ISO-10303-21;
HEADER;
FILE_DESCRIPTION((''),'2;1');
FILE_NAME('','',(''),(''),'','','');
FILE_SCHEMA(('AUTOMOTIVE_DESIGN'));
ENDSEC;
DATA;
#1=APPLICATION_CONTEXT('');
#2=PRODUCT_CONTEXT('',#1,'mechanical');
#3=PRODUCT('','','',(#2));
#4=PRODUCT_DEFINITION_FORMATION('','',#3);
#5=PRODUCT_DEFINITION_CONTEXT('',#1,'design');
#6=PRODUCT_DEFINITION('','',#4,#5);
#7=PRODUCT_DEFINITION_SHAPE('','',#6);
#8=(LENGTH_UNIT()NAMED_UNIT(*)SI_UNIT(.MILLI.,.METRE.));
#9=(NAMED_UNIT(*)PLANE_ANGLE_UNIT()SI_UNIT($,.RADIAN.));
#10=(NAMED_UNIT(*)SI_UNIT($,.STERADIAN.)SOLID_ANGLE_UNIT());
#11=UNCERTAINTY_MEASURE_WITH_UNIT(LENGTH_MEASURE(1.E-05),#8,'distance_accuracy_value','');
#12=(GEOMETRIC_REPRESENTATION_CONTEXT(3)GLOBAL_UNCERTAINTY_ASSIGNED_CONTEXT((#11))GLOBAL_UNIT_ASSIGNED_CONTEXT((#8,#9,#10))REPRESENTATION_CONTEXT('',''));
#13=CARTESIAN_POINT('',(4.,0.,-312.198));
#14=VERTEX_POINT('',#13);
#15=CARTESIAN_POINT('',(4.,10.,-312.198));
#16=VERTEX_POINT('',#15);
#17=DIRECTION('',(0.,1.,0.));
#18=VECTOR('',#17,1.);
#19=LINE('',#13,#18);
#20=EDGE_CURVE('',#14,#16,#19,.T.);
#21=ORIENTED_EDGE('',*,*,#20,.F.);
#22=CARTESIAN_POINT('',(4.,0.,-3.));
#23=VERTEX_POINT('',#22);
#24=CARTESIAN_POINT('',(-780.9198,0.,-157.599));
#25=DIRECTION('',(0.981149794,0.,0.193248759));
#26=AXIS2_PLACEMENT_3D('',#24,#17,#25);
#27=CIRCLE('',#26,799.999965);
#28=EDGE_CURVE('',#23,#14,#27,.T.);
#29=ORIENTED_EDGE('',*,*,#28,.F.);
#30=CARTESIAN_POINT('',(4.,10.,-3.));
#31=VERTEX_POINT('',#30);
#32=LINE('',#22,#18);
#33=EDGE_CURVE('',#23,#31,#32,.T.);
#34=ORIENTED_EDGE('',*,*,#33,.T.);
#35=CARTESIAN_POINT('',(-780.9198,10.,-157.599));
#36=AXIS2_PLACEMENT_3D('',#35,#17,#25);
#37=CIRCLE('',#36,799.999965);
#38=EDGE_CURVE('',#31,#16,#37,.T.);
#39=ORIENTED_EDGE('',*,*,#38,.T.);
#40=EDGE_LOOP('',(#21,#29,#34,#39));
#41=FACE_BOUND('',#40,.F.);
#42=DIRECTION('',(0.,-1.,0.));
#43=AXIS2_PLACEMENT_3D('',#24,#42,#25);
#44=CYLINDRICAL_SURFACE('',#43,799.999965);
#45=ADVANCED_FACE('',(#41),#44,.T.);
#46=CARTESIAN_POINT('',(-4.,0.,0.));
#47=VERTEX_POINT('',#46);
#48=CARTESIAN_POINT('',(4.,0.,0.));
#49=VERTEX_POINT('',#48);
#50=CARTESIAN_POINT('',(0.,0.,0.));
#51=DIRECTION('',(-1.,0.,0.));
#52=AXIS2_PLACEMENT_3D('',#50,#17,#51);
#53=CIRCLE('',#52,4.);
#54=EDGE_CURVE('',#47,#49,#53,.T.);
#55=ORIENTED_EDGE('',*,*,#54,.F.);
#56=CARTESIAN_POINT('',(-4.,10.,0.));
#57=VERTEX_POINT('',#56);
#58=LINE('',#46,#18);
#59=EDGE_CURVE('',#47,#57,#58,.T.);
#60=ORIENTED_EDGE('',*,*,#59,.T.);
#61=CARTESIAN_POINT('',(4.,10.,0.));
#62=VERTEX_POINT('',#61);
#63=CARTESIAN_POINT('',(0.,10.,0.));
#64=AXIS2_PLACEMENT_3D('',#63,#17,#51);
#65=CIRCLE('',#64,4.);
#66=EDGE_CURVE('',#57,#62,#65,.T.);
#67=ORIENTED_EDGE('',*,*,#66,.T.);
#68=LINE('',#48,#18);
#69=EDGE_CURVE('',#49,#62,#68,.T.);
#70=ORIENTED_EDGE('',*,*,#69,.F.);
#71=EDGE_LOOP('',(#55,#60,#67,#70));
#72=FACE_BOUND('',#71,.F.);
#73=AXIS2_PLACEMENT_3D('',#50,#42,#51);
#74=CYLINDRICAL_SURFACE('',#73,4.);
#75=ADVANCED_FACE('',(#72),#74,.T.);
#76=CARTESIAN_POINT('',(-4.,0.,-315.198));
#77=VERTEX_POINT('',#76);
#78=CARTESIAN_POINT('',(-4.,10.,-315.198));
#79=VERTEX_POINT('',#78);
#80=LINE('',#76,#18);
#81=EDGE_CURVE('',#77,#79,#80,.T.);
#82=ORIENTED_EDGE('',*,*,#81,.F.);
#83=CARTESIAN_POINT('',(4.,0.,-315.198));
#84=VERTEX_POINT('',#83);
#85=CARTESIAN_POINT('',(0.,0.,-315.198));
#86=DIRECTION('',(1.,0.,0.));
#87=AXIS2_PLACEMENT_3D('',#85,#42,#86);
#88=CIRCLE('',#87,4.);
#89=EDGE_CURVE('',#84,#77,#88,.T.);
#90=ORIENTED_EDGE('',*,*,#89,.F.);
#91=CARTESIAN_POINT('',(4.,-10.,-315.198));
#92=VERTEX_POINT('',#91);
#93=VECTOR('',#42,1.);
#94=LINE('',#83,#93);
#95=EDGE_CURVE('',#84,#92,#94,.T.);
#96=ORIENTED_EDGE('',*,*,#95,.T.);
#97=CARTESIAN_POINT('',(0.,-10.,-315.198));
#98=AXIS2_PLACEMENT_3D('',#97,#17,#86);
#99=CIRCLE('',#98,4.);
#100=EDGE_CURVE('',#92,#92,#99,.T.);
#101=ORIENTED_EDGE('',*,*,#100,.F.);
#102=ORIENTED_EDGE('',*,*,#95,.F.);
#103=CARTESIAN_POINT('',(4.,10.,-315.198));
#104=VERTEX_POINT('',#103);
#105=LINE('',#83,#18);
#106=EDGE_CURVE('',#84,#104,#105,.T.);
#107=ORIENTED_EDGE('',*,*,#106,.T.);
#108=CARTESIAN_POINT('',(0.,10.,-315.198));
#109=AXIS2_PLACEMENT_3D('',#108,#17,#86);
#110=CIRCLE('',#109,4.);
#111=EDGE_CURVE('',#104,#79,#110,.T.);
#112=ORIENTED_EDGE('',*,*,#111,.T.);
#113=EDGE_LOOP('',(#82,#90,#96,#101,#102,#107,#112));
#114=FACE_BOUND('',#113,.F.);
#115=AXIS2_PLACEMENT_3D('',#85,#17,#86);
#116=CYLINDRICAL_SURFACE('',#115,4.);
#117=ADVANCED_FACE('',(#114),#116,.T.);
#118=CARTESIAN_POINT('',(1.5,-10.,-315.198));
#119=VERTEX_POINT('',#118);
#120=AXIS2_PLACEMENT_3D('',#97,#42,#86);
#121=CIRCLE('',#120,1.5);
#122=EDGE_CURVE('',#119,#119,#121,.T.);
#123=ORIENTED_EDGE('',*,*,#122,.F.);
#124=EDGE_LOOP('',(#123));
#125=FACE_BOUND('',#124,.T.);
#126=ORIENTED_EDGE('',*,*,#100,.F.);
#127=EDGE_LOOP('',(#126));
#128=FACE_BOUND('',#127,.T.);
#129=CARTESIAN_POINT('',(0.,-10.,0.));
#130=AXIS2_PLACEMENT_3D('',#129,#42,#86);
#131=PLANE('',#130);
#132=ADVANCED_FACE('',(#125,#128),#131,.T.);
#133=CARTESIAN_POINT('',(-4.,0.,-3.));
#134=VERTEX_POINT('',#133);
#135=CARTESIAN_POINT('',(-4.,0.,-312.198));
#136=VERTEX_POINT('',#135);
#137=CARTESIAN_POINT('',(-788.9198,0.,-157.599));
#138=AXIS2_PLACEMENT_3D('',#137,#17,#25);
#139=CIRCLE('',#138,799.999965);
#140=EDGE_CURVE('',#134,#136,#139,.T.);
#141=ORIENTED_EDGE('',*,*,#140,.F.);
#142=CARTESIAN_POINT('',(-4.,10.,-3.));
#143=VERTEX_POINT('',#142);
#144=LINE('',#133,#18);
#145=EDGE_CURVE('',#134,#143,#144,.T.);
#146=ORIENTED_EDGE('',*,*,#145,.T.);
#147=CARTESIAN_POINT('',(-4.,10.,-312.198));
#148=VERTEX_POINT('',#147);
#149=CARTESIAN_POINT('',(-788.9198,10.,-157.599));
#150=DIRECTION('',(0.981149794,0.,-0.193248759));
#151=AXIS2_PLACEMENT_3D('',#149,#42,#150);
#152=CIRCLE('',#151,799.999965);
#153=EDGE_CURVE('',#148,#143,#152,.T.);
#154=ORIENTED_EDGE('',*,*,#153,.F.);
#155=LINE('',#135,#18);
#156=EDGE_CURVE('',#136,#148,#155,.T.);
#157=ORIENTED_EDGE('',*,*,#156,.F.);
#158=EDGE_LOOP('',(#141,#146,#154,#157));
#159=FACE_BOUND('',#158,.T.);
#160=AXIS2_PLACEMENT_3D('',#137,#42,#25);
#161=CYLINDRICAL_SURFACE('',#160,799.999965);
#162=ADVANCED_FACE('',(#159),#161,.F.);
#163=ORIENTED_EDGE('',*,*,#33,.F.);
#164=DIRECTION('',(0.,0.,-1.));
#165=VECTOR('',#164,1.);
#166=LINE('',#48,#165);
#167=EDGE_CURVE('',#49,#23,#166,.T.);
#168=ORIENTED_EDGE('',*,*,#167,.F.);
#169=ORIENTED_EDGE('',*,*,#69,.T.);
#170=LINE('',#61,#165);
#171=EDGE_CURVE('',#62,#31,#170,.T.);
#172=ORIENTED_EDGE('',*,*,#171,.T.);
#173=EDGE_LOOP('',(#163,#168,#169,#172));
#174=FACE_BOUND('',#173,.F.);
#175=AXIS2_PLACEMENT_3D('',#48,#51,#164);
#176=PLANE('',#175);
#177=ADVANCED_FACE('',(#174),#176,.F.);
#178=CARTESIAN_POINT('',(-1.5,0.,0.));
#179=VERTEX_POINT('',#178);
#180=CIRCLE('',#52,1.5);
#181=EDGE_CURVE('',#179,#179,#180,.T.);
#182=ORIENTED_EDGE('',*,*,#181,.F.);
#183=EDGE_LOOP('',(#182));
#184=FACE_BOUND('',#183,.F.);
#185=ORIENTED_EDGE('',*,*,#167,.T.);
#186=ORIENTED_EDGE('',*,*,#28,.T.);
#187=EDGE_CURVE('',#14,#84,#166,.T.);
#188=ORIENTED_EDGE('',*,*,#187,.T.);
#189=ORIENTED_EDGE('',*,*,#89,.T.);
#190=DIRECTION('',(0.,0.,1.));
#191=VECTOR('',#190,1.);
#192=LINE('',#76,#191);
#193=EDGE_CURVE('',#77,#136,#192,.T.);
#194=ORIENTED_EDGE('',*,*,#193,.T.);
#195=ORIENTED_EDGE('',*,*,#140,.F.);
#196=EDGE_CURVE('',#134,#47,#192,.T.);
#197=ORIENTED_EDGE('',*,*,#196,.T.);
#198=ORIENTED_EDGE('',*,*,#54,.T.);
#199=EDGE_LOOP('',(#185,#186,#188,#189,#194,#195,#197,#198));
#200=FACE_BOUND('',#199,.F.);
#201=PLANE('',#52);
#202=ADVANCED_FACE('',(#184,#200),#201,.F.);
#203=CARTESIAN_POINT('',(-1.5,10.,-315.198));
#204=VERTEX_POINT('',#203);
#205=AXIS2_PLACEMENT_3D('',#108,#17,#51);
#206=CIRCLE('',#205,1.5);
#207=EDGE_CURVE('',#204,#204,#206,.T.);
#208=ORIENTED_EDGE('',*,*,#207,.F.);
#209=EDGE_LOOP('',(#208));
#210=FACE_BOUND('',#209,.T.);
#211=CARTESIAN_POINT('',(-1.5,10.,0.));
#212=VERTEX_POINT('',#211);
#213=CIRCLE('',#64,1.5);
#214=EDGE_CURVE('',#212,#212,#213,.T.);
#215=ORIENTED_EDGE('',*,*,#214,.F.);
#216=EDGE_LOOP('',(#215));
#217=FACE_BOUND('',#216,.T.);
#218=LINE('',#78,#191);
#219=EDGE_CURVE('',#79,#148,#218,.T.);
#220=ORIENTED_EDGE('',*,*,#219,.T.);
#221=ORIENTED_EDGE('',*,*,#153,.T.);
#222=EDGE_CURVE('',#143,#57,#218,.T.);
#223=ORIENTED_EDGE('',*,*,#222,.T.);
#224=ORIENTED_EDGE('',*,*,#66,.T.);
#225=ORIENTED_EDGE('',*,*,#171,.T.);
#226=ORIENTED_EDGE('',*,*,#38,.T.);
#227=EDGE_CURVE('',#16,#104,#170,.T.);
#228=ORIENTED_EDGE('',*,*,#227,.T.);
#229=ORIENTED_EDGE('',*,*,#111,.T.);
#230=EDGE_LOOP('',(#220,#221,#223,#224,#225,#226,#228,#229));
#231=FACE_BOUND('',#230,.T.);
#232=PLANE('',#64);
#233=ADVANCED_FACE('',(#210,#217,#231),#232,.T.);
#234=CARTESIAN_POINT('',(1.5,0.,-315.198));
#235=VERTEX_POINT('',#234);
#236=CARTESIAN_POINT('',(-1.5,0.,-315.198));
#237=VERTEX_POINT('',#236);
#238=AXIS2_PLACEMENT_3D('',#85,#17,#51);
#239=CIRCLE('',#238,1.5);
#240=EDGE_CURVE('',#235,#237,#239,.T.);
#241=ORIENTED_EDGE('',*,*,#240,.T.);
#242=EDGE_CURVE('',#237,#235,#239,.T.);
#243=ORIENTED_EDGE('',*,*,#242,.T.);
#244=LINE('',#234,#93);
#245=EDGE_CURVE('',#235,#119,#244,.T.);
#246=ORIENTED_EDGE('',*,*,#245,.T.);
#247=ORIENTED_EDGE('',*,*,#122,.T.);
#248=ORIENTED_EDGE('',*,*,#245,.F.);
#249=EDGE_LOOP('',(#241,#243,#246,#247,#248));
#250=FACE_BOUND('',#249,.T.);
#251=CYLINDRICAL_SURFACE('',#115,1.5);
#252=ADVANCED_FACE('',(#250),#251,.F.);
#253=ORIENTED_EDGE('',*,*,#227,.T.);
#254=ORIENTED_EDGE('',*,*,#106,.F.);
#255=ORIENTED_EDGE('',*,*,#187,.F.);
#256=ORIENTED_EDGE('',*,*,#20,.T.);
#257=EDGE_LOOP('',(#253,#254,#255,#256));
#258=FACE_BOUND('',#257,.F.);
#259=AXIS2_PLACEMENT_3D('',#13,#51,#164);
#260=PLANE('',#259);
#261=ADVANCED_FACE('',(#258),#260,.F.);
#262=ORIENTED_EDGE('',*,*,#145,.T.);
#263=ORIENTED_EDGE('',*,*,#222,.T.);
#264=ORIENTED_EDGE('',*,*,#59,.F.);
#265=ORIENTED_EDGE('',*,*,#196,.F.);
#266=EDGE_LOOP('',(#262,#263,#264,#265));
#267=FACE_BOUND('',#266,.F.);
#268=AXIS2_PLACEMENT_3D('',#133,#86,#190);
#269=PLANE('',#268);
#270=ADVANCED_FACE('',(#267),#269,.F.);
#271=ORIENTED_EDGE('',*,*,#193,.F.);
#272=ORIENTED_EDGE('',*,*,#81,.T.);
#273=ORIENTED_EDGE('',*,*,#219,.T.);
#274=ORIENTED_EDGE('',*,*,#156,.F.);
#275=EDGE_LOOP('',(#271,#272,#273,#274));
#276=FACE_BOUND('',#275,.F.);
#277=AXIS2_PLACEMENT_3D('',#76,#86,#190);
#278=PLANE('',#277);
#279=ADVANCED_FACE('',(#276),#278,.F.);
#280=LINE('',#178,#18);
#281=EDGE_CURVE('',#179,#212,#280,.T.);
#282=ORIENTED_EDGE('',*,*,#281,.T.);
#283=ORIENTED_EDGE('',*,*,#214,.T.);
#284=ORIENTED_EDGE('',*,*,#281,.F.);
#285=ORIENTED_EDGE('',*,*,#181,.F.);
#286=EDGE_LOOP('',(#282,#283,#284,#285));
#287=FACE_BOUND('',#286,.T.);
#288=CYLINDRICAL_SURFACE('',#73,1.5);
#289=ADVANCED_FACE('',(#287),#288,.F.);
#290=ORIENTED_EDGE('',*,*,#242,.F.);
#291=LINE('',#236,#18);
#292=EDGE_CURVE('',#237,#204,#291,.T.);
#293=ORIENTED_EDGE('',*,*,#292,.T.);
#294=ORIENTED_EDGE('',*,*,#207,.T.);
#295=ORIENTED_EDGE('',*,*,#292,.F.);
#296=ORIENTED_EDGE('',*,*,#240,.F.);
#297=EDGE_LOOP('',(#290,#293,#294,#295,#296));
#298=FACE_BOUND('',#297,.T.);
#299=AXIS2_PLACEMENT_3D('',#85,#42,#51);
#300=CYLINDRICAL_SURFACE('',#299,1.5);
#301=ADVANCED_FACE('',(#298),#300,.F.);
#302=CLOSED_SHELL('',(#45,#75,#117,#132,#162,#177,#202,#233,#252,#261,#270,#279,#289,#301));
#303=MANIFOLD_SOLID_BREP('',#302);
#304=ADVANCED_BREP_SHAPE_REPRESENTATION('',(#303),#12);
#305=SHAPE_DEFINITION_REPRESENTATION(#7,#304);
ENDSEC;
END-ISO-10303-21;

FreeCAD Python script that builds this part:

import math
import FreeCAD as App
import Part
import Sketcher
from FreeCAD import Vector

doc = App.newDocument("Part")
params = doc.addObject("Spreadsheet::Sheet", "Params")
for row, (alias, value) in enumerate([
    ("sketch1_diameter", "3 mm"),
    ("sketch1_radius", "4 mm"),
    ("sketch1_radius2", "800 mm"),
    ("sketch1_height", "3 mm"),
    ("pad1_length", "10 mm"),
    ("sketch2_diameter", "8 mm"),
    ("sketch2_diameter2", "3 mm"),
    ("pad2_length", "10 mm"),
], start=1):
    params.set(f"A{row}", alias)
    params.set(f"B{row}", "=" + value)
    params.setAlias(f"B{row}", alias)

body = doc.addObject("PartDesign::Body", "Body")

# Sketch on XZ plane
sketch1 = body.newObject("Sketcher::SketchObject", "Sketch")
sketch1.AttachmentSupport = (doc.getObject("XZ_Plane"), [""])
sketch1.MapMode = "FlatFace"
sketch1.addGeometry([
    Part.ArcOfCircle(Part.Circle(Vector(0, 0, 0), Vector(0, 0, 1), 4), math.radians(0), math.radians(180)),  # 0
    Part.LineSegment(Vector(4, 0, 0), Vector(4, -3, 0)),  # 1
    Part.ArcOfCircle(Part.Circle(Vector(-780.9198, -157.599, 0), Vector(0, 0, 1), 799.999965), math.radians(-11.142439), math.radians(11.142439)),  # 2
    Part.LineSegment(Vector(4, -312.198, 0), Vector(4, -315.198, 0)),  # 3
    Part.ArcOfCircle(Part.Circle(Vector(0, -315.198, 0), Vector(0, 0, 1), 4), math.radians(180), math.radians(360)),  # 4
    Part.LineSegment(Vector(-4, -315.198, 0), Vector(-4, -312.198, 0)),  # 5
    Part.ArcOfCircle(Part.Circle(Vector(-788.9198, -157.599, 0), Vector(0, 0, 1), 799.999965), math.radians(-11.142439), math.radians(11.142439)),  # 6
    Part.LineSegment(Vector(-4, -3, 0), Vector(-4, 0, 0)),  # 7
    Part.Circle(Vector(0, 0, 0), Vector(0, 0, 1), 1.5),  # 8
    Part.Circle(Vector(0, -315.198, 0), Vector(0, 0, 1), 1.5),  # 9
], False)
sketch1.addConstraint([
    Sketcher.Constraint("Tangent", 0, 1, 1, 1),
    Sketcher.Constraint("Coincident", 1, 2, 2, 2),
    Sketcher.Constraint("Coincident", 2, 1, 3, 1),
    Sketcher.Constraint("Tangent", 3, 2, 4, 2),
    Sketcher.Constraint("Tangent", 4, 1, 5, 1),
    Sketcher.Constraint("Coincident", 5, 2, 6, 1),
    Sketcher.Constraint("Coincident", 6, 2, 7, 1),
    Sketcher.Constraint("Tangent", 7, 2, 0, 2),
    Sketcher.Constraint("Vertical", 1),
    Sketcher.Constraint("Vertical", 3),
    Sketcher.Constraint("Vertical", 5),
    Sketcher.Constraint("Vertical", 7),
    Sketcher.Constraint("Coincident", 0, 3, -1, 1),
    Sketcher.Constraint("Coincident", 8, 3, -1, 1),
    Sketcher.Constraint("Coincident", 9, 3, 4, 3),
    Sketcher.Constraint("Equal", 0, 4),
    Sketcher.Constraint("Equal", 2, 6),
    Sketcher.Constraint("Equal", 8, 9),
    Sketcher.Constraint("PointOnObject", 4, 3, -2),
    Sketcher.Constraint("Horizontal", 2, 3, 6, 3),
    Sketcher.Constraint("Equal", 1, 3),
    Sketcher.Constraint("Equal", 3, 5),
    Sketcher.Constraint("Diameter", 8, 3.0),
    Sketcher.Constraint("Radius", 0, 4.0),
    Sketcher.Constraint("Radius", 2, 800.0),
    Sketcher.Constraint("DistanceY", 1, 2, 1, 1, 3.0),
    Sketcher.Constraint("DistanceY", 4, 3, -1, 1, 315.198),
])
sketch1.setExpression("Constraints[22]", "Params.sketch1_diameter")
sketch1.setExpression("Constraints[23]", "Params.sketch1_radius")
sketch1.setExpression("Constraints[24]", "Params.sketch1_radius2")
sketch1.setExpression("Constraints[25]", "Params.sketch1_height")
pad1 = body.newObject("PartDesign::Pad", "Pad")
pad1.Profile = sketch1
pad1.setExpression("Length", "Params.pad1_length")
pad1.Reversed = True

# Sketch on XZ plane
sketch2 = body.newObject("Sketcher::SketchObject", "Sketch001")
sketch2.AttachmentSupport = (doc.getObject("XZ_Plane"), [""])
sketch2.MapMode = "FlatFace"
sketch2.addGeometry([
    Part.Circle(Vector(0, -315.198, 0), Vector(0, 0, 1), 4),
    Part.Circle(Vector(0, -315.198, 0), Vector(0, 0, 1), 1.5),
], False)
sketch2.addConstraint([
    Sketcher.Constraint("Coincident", 1, 3, 0, 3),
    Sketcher.Constraint("PointOnObject", 0, 3, -2),
    Sketcher.Constraint("Diameter", 0, 8.0),
    Sketcher.Constraint("Diameter", 1, 3.0),
    Sketcher.Constraint("DistanceY", 0, 3, -1, 1, 315.198),
])
sketch2.setExpression("Constraints[2]", "Params.sketch2_diameter")
sketch2.setExpression("Constraints[3]", "Params.sketch2_diameter2")
pad2 = body.newObject("PartDesign::Pad", "Pad001")
pad2.Profile = sketch2
pad2.setExpression("Length", "Params.pad2_length")

doc.recompute()
